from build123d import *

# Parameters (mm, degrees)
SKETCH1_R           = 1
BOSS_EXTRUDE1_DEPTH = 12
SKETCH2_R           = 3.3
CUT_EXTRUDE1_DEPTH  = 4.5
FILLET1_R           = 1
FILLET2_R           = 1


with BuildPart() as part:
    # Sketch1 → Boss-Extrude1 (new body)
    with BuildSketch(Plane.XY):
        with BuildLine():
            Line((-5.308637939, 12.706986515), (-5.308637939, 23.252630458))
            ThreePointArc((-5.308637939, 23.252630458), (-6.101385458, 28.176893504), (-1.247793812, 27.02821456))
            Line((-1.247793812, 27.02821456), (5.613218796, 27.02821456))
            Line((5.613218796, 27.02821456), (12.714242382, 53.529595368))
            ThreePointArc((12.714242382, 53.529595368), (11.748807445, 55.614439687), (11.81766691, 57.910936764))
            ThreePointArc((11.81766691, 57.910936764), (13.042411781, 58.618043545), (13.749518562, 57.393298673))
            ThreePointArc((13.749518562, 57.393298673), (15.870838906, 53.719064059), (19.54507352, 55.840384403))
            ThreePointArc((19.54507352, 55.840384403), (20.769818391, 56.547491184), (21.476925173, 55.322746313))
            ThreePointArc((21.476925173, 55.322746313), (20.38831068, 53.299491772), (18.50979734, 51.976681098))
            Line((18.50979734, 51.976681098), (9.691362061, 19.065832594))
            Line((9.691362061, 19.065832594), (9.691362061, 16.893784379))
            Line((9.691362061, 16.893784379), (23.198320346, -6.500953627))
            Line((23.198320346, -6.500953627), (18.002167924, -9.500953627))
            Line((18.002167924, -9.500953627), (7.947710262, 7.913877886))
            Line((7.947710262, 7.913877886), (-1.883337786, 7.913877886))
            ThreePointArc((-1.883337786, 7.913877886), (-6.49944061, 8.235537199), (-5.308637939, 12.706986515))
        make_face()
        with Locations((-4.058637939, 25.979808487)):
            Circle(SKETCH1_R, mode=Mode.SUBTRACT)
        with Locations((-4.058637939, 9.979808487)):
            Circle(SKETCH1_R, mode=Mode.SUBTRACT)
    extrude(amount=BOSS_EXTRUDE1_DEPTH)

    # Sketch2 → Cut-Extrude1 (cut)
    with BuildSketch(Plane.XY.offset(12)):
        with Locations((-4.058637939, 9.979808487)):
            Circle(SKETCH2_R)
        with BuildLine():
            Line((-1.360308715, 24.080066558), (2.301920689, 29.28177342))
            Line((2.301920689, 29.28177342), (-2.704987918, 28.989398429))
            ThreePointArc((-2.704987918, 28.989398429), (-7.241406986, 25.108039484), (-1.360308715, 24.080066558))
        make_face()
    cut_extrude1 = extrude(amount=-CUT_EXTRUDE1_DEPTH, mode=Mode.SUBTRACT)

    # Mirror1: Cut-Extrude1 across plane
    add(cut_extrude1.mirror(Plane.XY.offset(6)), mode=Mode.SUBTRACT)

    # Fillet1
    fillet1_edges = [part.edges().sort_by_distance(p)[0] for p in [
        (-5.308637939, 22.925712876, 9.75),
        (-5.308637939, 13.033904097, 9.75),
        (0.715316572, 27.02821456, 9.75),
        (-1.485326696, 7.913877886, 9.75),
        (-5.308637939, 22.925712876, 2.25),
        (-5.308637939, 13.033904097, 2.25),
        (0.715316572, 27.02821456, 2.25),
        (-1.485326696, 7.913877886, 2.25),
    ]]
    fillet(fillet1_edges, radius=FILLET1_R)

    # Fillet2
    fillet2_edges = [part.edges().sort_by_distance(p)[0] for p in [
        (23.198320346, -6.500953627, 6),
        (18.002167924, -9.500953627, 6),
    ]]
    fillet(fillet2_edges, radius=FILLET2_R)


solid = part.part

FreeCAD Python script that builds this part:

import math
import FreeCAD as App
import Part
import Sketcher
Q = App.Units.Quantity


def edges_at(feature, points):
    """Names of the edges that pass closest to the given points."""
    edges = feature.Shape.Edges
    near = lambda p: min(range(len(edges)), key=lambda i: edges[i].distToShape(Part.Vertex(*p))[0])
    return sorted({f"Edge{near(p) + 1}" for p in points})

doc = App.newDocument("Part")
params = doc.addObject("Spreadsheet::Sheet", "Params")
for row, (alias, value) in enumerate([
    ("sketch1_diameter", "2 mm"),
    ("sketch1_radius", "3 mm"),
    ("sketch1_length", "6 mm"),
    ("pad1_length", "12 mm"),
    ("sketch2_diameter", "6.6 mm"),
    ("pocket1_length", "4.5 mm"),
    ("fillet_radius", "1 mm"),
    ("fillet2_radius", "1 mm"),
], start=1):
    params.set(f"A{row}", alias)
    params.set(f"B{row}", "=" + value)
    params.setAlias(f"B{row}", alias)

body = doc.addObject("PartDesign::Body", "Body")

sketch1 = doc.addObject("Sketcher::SketchObject", "Sketch")
body.addObject(sketch1)
sketch1.AttachmentSupport = (doc.XY_Plane, [""])
sketch1.MapMode = "FlatFace"
sketch1.addGeometry([
    Part.LineSegment(App.Vector(-5.308638, 23.25263, 0), App.Vector(-5.308638, 12.706987, 0)),
    Part.ArcOfCircle(Part.Circle(App.Vector(-4.058638, 9.979808, 0), App.Vector(0, 0, 1), 3), math.radians(114.624318), math.radians(316.477172)),
    Part.LineSegment(App.Vector(-1.883338, 7.913878, 0), App.Vector(7.94771, 7.913878, 0)),
    Part.LineSegment(App.Vector(7.94771, 7.913878, 0), App.Vector(18.002168, -9.500954, 0)),
    Part.LineSegment(App.Vector(18.002168, -9.500954, 0), App.Vector(23.19832, -6.500954, 0)),
    Part.LineSegment(App.Vector(23.19832, -6.500954, 0), App.Vector(9.691362, 16.893784, 0)),
    Part.LineSegment(App.Vector(9.691362, 16.893784, 0), App.Vector(9.691362, 19.065833, 0)),
    Part.LineSegment(App.Vector(9.691362, 19.065833, 0), App.Vector(18.509797, 51.976681, 0)),
    Part.ArcOfCircle(Part.Circle(App.Vector(16.647296, 56.616842, 0), App.Vector(0, 0, 1), 5), math.radians(-68.130102), math.radians(-15)),
    Part.ArcOfCircle(Part.Circle(App.Vector(20.510999, 55.581565, 0), App.Vector(0, 0, 1), 1), math.radians(-15), math.radians(165)),
    Part.ArcOfCircle(Part.Circle(App.Vector(16.647296, 56.616842, 0), App.Vector(0, 0, 1), 3), math.radians(165), math.radians(345)),
    Part.ArcOfCircle(Part.Circle(App.Vector(12.783593, 57.652118, 0), App.Vector(0, 0, 1), 1), math.radians(-15), math.radians(165)),
    Part.ArcOfCircle(Part.Circle(App.Vector(16.647296, 56.616842, 0), App.Vector(0, 0, 1), 5), math.radians(165), math.radians(218.130102)),
    Part.LineSegment(App.Vector(12.714242, 53.529595, 0), App.Vector(5.613219, 27.028215, 0)),
    Part.LineSegment(App.Vector(5.613219, 27.028215, 0), App.Vector(-1.247794, 27.028215, 0)),
    Part.ArcOfCircle(Part.Circle(App.Vector(-4.058638, 25.979808, 0), App.Vector(0, 0, 1), 3), math.radians(20.454821), math.radians(245.375682)),
    Part.Circle(App.Vector(-4.058638, 9.979808, 0), App.Vector(0, 0, 1), 1),
    Part.Circle(App.Vector(-4.058638, 25.979808, 0), App.Vector(0, 0, 1), 1),
], False)
sketch1.addConstraint([
    Sketcher.Constraint("Coincident", 0, 2, 1, 1),
    Sketcher.Constraint("Coincident", 1, 2, 2, 1),
    Sketcher.Constraint("Coincident", 2, 2, 3, 1),
    Sketcher.Constraint("Coincident", 3, 2, 4, 1),
    Sketcher.Constraint("Coincident", 4, 2, 5, 1),
    Sketcher.Constraint("Coincident", 5, 2, 6, 1),
    Sketcher.Constraint("Coincident", 6, 2, 7, 1),
    Sketcher.Constraint("Coincident", 7, 2, 8, 1),
    Sketcher.Constraint("Tangent", 8, 2, 9, 1),
    Sketcher.Constraint("Tangent", 9, 2, 10, 2),
    Sketcher.Constraint("Tangent", 10, 1, 11, 1),
    Sketcher.Constraint("Tangent", 11, 2, 12, 1),
    Sketcher.Constraint("Coincident", 12, 2, 13, 1),
    Sketcher.Constraint("Coincident", 13, 2, 14, 1),
    Sketcher.Constraint("Coincident", 14, 2, 15, 1),
    Sketcher.Constraint("Coincident", 15, 2, 0, 1),
    Sketcher.Constraint("Vertical", 0),
    Sketcher.Constraint("Horizontal", 2),
    Sketcher.Constraint("Vertical", 6),
    Sketcher.Constraint("Horizontal", 14),
    Sketcher.Constraint("Coincident", 10, 3, 8, 3),
    Sketcher.Constraint("Coincident", 12, 3, 8, 3),
    Sketcher.Constraint("Coincident", 16, 3, 1, 3),
    Sketcher.Constraint("Coincident", 17, 3, 15, 3),
    Sketcher.Constraint("Equal", 1, 10),
    Sketcher.Constraint("Equal", 9, 11),
    Sketcher.Constraint("Equal", 10, 15),
    Sketcher.Constraint("Equal", 11, 16),
    Sketcher.Constraint("Equal", 16, 17),
    Sketcher.Constraint("Perpendicular", 3, 4),
    Sketcher.Constraint("Perpendicular", 4, 5),
    Sketcher.Constraint("Parallel", 7, 13),
    Sketcher.Constraint("Vertical", 1, 3, 15, 3),
    Sketcher.Constraint("Diameter", 16, Q("2 mm")),
    Sketcher.Constraint("Radius", 1, Q("3 mm")),
    Sketcher.Constraint("Angle", 3, Q("-60 deg")),
    Sketcher.Constraint("Angle", 7, Q("75 deg")),
    Sketcher.Constraint("Distance", 4, Q("6 mm")),
    Sketcher.Constraint("DistanceY", 1, 3, 15, 3, Q("16 mm")),
    Sketcher.Constraint("DistanceX", 0, 2, 5, 2, Q("15 mm")),
    Sketcher.Constraint("DistanceX", 0, 2, 16, 3, Q("1.25 mm")),
    Sketcher.Constraint("DistanceX", -1, 1, 9, 3, Q("20.510999 mm")),
    Sketcher.Constraint("DistanceX", 2, 1, 2, 2, Q("9.831048 mm")),
    Sketcher.Constraint("DistanceY", 6, 1, 6, 2, Q("2.172048 mm")),
    Sketcher.Constraint("DistanceY", -1, 1, 10, 1, Q("57.393299 mm")),
    Sketcher.Constraint("DistanceX", 1, 3, 1, 2, Q("2.1753 mm")),
    Sketcher.Constraint("DistanceX", 12, 3, 7, 2, Q("1.862501 mm")),
    Sketcher.Constraint("Distance", 13, Q("27.436248 mm")),
    Sketcher.Constraint("DistanceX", 14, 2, 14, 1, Q("6.861013 mm")),
    Sketcher.Constraint("DistanceY", -1, 1, 1, 3, Q("9.979808 mm")),
    Sketcher.Constraint("DistanceY", -1, 1, 8, 3, Q("56.616842 mm")),
    Sketcher.Constraint("DistanceX", -1, 1, 2, 2, Q("7.94771 mm")),
    Sketcher.Constraint("DistanceX", -1, 1, 4, 2, Q("23.19832 mm")),
])
sketch1.setExpression("Constraints[33]", "Params.sketch1_diameter")
sketch1.setExpression("Constraints[34]", "Params.sketch1_radius")
sketch1.setExpression("Constraints[37]", "Params.sketch1_length")
pad1 = doc.addObject("PartDesign::Pad", "Pad")
body.addObject(pad1)
pad1.Profile = sketch1
pad1.setExpression("Length", "Params.pad1_length")

sketch2 = doc.addObject("Sketcher::SketchObject", "Sketch001")
body.addObject(sketch2)
sketch2.AttachmentSupport = (doc.XY_Plane, [""])
sketch2.MapMode = "FlatFace"
sketch2.AttachmentOffset = App.Placement(App.Vector(0, 0, 12), App.Rotation())
sketch2.addGeometry([
    Part.Circle(App.Vector(-4.058638, 9.979808, 0), App.Vector(0, 0, 1), 3.3),
    Part.LineSegment(App.Vector(-1.360309, 24.080067, 0), App.Vector(2.301921, 29.281773, 0)),
    Part.LineSegment(App.Vector(2.301921, 29.281773, 0), App.Vector(-2.704988, 28.989398, 0)),
    Part.ArcOfCircle(Part.Circle(App.Vector(-4.058638, 25.979808, 0), App.Vector(0, 0, 1), 3.3), math.radians(65.782791), math.radians(324.852777)),
], False)
sketch2.addConstraint([
    Sketcher.Constraint("Coincident", 1, 2, 2, 1),
    Sketcher.Constraint("Coincident", 2, 2, 3, 1),
    Sketcher.Constraint("Tangent", 3, 2, 1, 1),
    Sketcher.Constraint("Equal", 0, 3),
    Sketcher.Constraint("Vertical", 0, 3, 3, 3),
    Sketcher.Constraint("Diameter", 0, Q("6.6 mm")),
    Sketcher.Constraint("DistanceY", 0, 3, 3, 3, Q("16 mm")),
    Sketcher.Constraint("DistanceY", -1, 1, 2, 2, Q("28.989398 mm")),
    Sketcher.Constraint("Distance", 1, Q("6.361578 mm")),
    Sketcher.Constraint("DistanceY", -1, 1, 0, 3, Q("9.979808 mm")),
    Sketcher.Constraint("DistanceX", -1, 1, 1, 2, Q("2.301921 mm")),
    Sketcher.Constraint("DistanceX", 3, 2, -1, 1, Q("1.360309 mm")),
])
sketch2.setExpression("Constraints[5]", "Params.sketch2_diameter")
pocket1 = doc.addObject("PartDesign::Pocket", "Pocket")
body.addObject(pocket1)
pocket1.Profile = sketch2
pocket1.setExpression("Length", "Params.pocket1_length")
doc.recompute()

datumplane = doc.addObject("PartDesign::Plane", "DatumPlane")
body.addObject(datumplane)
datumplane.AttachmentSupport = (doc.XY_Plane, [""])
datumplane.MapMode = "FlatFace"
datumplane.AttachmentOffset = App.Placement(App.Vector(0, 0, 6), App.Rotation())
mirrored = doc.addObject("PartDesign::Mirrored", "Mirrored")
body.addObject(mirrored)
mirrored.Originals = [pocket1]
mirrored.MirrorPlane = (datumplane, [""])
body.Tip = mirrored
doc.recompute()

fillet = doc.addObject("PartDesign::Fillet", "Fillet")
body.addObject(fillet)
fillet.Base = (mirrored, edges_at(mirrored, [
    (-5.309, 22.926, 9.75),
    (-5.309, 13.034, 9.75),
    (0.715, 27.028, 9.75),
    (-1.485, 7.914, 9.75),
    (-5.309, 22.926, 2.25),
    (-5.309, 13.034, 2.25),
    (0.715, 27.028, 2.25),
    (-1.485, 7.914, 2.25),
]))
fillet.setExpression("Radius", "Params.fillet_radius")
doc.recompute()

fillet2 = doc.addObject("PartDesign::Fillet", "Fillet001")
body.addObject(fillet2)
fillet2.Base = (fillet, edges_at(fillet, [(23.198, -6.501, 6), (18.002, -9.501, 6)]))
fillet2.setExpression("Radius", "Params.fillet2_radius")

doc.recompute()
